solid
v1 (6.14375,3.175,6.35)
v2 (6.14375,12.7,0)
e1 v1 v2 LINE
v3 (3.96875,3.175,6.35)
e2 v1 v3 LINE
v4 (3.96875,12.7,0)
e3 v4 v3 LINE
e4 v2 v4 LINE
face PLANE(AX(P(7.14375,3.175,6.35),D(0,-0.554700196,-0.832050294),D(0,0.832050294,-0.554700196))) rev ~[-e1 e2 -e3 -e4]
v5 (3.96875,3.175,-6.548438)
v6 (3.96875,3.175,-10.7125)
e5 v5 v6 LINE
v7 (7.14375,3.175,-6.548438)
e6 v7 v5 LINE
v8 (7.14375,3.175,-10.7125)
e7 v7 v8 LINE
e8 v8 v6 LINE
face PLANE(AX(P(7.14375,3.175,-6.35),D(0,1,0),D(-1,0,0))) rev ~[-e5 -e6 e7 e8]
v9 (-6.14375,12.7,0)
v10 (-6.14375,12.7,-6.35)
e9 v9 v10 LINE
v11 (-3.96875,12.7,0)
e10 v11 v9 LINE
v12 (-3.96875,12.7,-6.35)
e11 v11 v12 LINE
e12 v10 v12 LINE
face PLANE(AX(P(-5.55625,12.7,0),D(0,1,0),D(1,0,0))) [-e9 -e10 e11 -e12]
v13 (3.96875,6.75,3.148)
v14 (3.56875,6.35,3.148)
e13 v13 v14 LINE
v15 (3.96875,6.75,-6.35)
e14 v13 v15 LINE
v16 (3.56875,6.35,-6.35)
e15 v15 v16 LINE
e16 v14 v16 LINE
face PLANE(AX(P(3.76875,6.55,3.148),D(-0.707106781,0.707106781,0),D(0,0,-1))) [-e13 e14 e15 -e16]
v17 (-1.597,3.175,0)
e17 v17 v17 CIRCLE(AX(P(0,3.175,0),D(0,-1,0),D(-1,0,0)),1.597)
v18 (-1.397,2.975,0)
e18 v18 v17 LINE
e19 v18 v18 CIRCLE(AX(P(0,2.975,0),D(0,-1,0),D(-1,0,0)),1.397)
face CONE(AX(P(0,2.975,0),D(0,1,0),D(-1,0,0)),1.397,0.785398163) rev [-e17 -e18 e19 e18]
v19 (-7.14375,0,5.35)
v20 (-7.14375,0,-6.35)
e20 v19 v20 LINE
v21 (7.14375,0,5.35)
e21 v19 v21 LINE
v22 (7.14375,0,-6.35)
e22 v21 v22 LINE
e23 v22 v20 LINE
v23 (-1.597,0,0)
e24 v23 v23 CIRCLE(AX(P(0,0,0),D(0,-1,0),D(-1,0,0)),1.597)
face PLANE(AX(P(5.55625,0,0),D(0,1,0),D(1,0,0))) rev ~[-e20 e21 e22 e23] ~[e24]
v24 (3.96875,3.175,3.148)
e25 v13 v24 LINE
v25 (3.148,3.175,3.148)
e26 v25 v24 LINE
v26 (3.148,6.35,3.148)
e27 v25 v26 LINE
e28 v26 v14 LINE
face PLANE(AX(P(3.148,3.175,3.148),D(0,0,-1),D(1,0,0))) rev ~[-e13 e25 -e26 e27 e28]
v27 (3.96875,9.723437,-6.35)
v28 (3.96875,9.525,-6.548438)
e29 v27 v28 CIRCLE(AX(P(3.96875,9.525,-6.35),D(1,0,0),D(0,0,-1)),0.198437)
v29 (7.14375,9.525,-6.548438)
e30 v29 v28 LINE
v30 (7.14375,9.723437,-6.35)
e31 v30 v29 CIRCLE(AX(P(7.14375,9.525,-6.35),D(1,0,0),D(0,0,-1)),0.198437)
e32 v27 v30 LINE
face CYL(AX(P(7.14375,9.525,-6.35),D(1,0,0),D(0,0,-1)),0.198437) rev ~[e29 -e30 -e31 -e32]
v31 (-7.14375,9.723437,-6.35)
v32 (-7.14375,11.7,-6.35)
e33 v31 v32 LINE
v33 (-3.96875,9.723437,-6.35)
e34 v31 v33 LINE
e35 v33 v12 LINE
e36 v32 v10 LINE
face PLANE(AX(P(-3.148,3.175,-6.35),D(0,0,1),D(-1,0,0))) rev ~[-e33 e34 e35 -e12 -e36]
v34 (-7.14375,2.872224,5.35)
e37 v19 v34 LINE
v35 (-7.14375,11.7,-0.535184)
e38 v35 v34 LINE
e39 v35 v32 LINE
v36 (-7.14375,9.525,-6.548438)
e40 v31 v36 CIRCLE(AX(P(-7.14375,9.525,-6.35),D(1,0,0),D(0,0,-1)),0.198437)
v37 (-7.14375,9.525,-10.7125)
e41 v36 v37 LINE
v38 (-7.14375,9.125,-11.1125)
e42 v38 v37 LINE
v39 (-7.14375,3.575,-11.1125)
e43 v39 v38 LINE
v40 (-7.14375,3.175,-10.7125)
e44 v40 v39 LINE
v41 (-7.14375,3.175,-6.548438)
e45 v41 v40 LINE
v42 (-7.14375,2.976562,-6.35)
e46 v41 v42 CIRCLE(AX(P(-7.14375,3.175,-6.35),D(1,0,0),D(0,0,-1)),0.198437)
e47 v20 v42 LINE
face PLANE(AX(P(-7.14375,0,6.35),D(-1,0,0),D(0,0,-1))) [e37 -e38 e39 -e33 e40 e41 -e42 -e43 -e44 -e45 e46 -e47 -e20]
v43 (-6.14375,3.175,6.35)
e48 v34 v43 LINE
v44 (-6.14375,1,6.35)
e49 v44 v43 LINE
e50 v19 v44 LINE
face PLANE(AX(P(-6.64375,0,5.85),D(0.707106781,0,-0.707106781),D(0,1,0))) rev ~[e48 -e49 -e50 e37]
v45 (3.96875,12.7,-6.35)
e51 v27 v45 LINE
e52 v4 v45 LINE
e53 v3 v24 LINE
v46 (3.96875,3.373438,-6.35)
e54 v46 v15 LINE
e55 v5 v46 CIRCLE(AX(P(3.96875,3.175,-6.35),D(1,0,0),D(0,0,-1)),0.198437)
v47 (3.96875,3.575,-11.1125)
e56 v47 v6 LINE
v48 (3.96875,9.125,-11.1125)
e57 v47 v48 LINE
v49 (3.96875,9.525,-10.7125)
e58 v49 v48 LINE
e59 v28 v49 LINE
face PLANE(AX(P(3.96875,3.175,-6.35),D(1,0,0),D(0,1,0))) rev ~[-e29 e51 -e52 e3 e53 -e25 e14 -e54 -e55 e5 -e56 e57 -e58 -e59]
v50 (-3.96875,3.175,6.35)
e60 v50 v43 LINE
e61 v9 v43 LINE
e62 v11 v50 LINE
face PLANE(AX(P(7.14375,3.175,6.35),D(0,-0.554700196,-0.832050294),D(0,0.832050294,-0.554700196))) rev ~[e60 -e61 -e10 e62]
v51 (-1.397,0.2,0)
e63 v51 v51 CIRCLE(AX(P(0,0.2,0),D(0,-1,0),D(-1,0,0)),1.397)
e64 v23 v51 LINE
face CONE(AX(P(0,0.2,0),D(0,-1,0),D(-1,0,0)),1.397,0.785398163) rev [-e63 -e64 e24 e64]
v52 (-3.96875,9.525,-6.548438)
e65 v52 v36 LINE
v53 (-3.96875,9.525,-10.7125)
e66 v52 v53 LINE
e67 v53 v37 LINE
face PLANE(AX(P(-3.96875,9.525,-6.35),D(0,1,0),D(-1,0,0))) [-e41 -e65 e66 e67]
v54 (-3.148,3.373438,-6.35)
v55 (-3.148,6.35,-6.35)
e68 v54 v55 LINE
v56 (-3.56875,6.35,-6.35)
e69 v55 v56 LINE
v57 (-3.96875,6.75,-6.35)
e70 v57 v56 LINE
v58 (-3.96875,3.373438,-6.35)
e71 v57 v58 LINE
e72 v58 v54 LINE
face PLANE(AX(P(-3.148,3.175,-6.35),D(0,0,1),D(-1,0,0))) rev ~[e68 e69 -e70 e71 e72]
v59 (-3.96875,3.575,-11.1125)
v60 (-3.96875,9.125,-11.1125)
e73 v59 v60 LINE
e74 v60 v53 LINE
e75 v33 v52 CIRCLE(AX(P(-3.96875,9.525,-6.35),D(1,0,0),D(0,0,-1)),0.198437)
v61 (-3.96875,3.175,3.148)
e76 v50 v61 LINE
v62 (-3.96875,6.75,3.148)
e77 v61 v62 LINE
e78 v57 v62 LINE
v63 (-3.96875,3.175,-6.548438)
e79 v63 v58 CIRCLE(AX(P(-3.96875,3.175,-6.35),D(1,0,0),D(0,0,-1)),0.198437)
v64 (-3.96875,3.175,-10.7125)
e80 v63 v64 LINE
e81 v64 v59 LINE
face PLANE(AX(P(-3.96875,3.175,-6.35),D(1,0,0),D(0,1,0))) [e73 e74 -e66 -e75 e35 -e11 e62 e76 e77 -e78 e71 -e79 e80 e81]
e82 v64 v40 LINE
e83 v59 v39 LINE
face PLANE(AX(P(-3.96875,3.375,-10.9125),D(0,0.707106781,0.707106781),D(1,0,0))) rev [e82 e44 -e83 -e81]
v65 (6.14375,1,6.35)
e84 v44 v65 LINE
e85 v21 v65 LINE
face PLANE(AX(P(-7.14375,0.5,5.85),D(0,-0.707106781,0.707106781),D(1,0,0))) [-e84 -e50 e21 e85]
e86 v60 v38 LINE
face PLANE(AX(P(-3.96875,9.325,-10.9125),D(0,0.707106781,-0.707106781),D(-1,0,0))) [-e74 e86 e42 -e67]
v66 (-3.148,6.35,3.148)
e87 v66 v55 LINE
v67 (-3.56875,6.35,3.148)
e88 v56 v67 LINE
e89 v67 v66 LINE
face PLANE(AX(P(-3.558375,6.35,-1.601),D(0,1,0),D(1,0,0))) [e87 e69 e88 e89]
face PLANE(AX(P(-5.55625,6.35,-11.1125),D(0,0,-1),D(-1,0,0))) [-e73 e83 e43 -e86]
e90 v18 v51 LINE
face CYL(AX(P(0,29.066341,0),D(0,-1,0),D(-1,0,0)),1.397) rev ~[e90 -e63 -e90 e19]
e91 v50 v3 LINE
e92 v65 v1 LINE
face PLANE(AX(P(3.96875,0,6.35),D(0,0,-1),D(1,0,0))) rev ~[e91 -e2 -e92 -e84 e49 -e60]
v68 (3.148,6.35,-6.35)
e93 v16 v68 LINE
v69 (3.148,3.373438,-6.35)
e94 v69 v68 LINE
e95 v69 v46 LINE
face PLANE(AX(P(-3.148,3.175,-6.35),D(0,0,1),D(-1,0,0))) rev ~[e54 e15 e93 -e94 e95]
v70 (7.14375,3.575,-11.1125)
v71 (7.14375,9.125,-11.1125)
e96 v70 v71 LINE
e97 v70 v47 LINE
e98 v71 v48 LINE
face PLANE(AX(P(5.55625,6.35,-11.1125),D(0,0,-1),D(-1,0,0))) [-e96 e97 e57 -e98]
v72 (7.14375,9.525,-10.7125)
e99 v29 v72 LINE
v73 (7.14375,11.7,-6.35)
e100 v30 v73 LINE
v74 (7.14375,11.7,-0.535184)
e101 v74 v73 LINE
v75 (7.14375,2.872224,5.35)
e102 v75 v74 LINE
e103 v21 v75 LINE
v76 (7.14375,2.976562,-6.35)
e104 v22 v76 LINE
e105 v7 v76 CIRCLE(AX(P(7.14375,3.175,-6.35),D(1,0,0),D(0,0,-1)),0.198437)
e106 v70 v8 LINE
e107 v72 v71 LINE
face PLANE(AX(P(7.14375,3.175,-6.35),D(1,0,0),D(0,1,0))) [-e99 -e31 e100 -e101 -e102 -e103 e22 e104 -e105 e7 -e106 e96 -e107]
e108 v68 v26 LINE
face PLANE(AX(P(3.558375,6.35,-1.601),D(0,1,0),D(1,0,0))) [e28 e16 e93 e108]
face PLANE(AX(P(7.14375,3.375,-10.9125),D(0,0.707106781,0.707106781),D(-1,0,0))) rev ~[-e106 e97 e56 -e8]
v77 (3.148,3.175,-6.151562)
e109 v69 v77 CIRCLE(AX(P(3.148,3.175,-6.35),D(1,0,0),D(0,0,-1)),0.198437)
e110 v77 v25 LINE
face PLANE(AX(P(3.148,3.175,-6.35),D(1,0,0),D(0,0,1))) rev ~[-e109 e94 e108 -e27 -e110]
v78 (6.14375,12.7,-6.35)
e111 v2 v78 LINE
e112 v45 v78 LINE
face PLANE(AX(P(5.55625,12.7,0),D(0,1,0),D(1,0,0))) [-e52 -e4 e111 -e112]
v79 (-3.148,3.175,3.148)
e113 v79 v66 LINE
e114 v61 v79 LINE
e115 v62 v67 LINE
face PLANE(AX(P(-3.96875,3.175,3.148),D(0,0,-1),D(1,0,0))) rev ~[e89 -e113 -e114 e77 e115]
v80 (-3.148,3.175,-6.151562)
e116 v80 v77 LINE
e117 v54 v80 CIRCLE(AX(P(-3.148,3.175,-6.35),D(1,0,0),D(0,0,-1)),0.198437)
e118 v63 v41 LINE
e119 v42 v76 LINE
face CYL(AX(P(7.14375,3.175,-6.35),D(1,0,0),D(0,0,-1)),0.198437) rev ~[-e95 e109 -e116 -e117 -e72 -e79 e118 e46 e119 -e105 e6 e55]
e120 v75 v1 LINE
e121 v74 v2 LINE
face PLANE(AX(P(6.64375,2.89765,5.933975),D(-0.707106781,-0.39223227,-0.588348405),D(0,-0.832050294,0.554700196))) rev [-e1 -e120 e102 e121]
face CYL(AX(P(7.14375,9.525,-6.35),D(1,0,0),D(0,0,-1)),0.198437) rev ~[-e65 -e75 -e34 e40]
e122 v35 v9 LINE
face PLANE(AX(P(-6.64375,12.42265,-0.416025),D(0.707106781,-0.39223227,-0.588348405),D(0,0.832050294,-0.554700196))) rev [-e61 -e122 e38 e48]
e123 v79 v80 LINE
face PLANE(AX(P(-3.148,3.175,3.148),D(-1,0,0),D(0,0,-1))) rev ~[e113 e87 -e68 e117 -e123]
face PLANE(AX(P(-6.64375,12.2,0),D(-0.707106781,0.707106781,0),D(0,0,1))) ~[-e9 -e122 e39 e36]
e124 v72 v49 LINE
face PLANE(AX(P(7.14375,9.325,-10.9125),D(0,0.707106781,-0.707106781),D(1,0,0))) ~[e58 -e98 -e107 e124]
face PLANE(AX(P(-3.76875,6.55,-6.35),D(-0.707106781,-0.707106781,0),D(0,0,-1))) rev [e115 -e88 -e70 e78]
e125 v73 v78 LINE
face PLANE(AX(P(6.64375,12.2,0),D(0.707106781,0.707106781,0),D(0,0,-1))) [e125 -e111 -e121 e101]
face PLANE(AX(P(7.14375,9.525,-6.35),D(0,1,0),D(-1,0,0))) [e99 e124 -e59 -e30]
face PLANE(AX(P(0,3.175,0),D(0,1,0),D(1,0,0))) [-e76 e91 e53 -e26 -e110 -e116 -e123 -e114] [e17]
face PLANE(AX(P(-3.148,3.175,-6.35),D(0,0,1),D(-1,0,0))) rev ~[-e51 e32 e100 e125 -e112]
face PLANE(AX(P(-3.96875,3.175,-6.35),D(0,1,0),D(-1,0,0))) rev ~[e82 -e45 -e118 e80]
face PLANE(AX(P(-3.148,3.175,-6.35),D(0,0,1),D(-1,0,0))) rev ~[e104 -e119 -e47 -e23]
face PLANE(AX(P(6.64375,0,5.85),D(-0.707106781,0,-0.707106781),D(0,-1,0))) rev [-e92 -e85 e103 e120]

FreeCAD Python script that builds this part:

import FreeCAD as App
import Part
import Sketcher
Q = App.Units.Quantity


def edges_at(feature, points):
    """Names of the edges that pass closest to the given points."""
    edges = feature.Shape.Edges
    near = lambda p: min(range(len(edges)), key=lambda i: edges[i].distToShape(Part.Vertex(*p))[0])
    return sorted({f"Edge{near(p) + 1}" for p in points})

doc = App.newDocument("Part")
body = doc.addObject("PartDesign::Body", "Body")

# Sketch on XZ plane
sketch1 = body.newObject("Sketcher::SketchObject", "Sketch")
sketch1.AttachmentSupport = (doc.getObject("XZ_Plane"), [""])
sketch1.MapMode = "FlatFace"
sketch1.addGeometry(Part.LineSegment(App.Vector(-4, -6, 0), App.Vector(-4, 6, 0)), False)
sketch1.addGeometry(Part.LineSegment(App.Vector(-4, 6, 0), App.Vector(4, 6, 0)), False)
sketch1.addGeometry(Part.LineSegment(App.Vector(4, 6, 0), App.Vector(4, -6, 0)), False)
sketch1.addGeometry(Part.LineSegment(App.Vector(4, -6, 0), App.Vector(-4, -6, 0)), False)
sketch1.addConstraint(Sketcher.Constraint("Coincident", 0, 2, 1, 1))
sketch1.addConstraint(Sketcher.Constraint("Coincident", 1, 2, 2, 1))
sketch1.addConstraint(Sketcher.Constraint("Coincident", 2, 2, 3, 1))
sketch1.addConstraint(Sketcher.Constraint("Coincident", 3, 2, 0, 1))
sketch1.addConstraint(Sketcher.Constraint("Vertical", 0))
sketch1.addConstraint(Sketcher.Constraint("Horizontal", 1))
sketch1.addConstraint(Sketcher.Constraint("Vertical", 2))
sketch1.addConstraint(Sketcher.Constraint("Horizontal", 3))
sketch1.addConstraint(Sketcher.Constraint("Symmetric", 0, 2, 2, 2, -1, 1))
sketch1.addConstraint(Sketcher.Constraint("DistanceY", 0, 1, 0, 2, Q("0.5 in")))
sketch1.addConstraint(Sketcher.Constraint("DistanceX", 1, 1, 1, 2, Q("0.3125 in")))
pad1 = body.newObject("PartDesign::Pad", "Pad")
pad1.Profile = sketch1
pad1.Length = Q("0.125 in")
pad1.Reversed = True

# Sketch on XZ plane
sketch2 = body.newObject("Sketcher::SketchObject", "Sketch001")
sketch2.AttachmentSupport = (doc.getObject("XZ_Plane"), [""])
sketch2.MapMode = "FlatFace"
sketch2.addGeometry(Part.LineSegment(App.Vector(4, -6.3, 0), App.Vector(4, 6.3, 0)), False)
sketch2.addGeometry(Part.LineSegment(App.Vector(4, 6.3, 0), App.Vector(7.1, 6.3, 0)), False)
sketch2.addGeometry(Part.LineSegment(App.Vector(7.1, 6.3, 0), App.Vector(7.1, -6.3, 0)), False)
sketch2.addGeometry(Part.LineSegment(App.Vector(7.1, -6.3, 0), App.Vector(4, -6.3, 0)), False)
sketch2.addGeometry(Part.LineSegment(App.Vector(-7.1, -6.3, 0), App.Vector(-7.1, 6.3, 0)), False)
sketch2.addGeometry(Part.LineSegment(App.Vector(-7.1, 6.3, 0), App.Vector(-4, 6.3, 0)), False)
sketch2.addGeometry(Part.LineSegment(App.Vector(-4, 6.3, 0), App.Vector(-4, -6.3, 0)), False)
sketch2.addGeometry(Part.LineSegment(App.Vector(-4, -6.3, 0), App.Vector(-7.1, -6.3, 0)), False)
sketch2.addConstraint(Sketcher.Constraint("Coincident", 0, 2, 1, 1))
sketch2.addConstraint(Sketcher.Constraint("Coincident", 1, 2, 2, 1))
sketch2.addConstraint(Sketcher.Constraint("Coincident", 2, 2, 3, 1))
sketch2.addConstraint(Sketcher.Constraint("Coincident", 3, 2, 0, 1))
sketch2.addConstraint(Sketcher.Constraint("Coincident", 4, 2, 5, 1))
sketch2.addConstraint(Sketcher.Constraint("Coincident", 5, 2, 6, 1))
sketch2.addConstraint(Sketcher.Constraint("Coincident", 6, 2, 7, 1))
sketch2.addConstraint(Sketcher.Constraint("Coincident", 7, 2, 4, 1))
sketch2.addConstraint(Sketcher.Constraint("Vertical", 0))
sketch2.addConstraint(Sketcher.Constraint("Horizontal", 1))
sketch2.addConstraint(Sketcher.Constraint("Vertical", 2))
sketch2.addConstraint(Sketcher.Constraint("Horizontal", 3))
sketch2.addConstraint(Sketcher.Constraint("Vertical", 4))
sketch2.addConstraint(Sketcher.Constraint("Horizontal", 5))
sketch2.addConstraint(Sketcher.Constraint("Vertical", 6))
sketch2.addConstraint(Sketcher.Constraint("Horizontal", 7))
sketch2.addConstraint(Sketcher.Constraint("Symmetric", 2, 2, 4, 2, -1, 1))
sketch2.addConstraint(Sketcher.Constraint("Symmetric", 0, 2, 6, 2, -1, 1))
sketch2.addConstraint(Sketcher.Constraint("Horizontal", 1, 2, 4, 2))
sketch2.addConstraint(Sketcher.Constraint("DistanceY", 0, 1, 0, 2, Q("0.5 in")))
sketch2.addConstraint(Sketcher.Constraint("DistanceX", 1, 1, 1, 2, Q("0.125 in")))
sketch2.addConstraint(Sketcher.Constraint("DistanceX", -1, 1, 0, 2, Q("0.15625 in")))
pad2 = body.newObject("PartDesign::Pad", "Pad001")
pad2.Profile = sketch2
pad2.Length = Q("0.5 in")
pad2.Reversed = True

# Sketch on YZ plane
sketch3 = body.newObject("Sketcher::SketchObject", "Sketch002")
sketch3.AttachmentSupport = (doc.getObject("YZ_Plane"), [""])
sketch3.MapMode = "FlatFace"
sketch3.AttachmentOffset = App.Placement(App.Vector(0, 0, 0.28125 * 25.4), App.Rotation())
sketch3.addGeometry(Part.LineSegment(App.Vector(3, 6, 0), App.Vector(13, 0, 0)), False)
sketch3.addGeometry(Part.LineSegment(App.Vector(13, 0, 0), App.Vector(13, 6, 0)), False)
sketch3.addGeometry(Part.LineSegment(App.Vector(13, 6, 0), App.Vector(3, 6, 0)), False)
sketch3.addConstraint(Sketcher.Constraint("Coincident", 0, 2, 1, 1))
sketch3.addConstraint(Sketcher.Constraint("Coincident", 1, 2, 2, 1))
sketch3.addConstraint(Sketcher.Constraint("Coincident", 2, 2, 0, 1))
sketch3.addConstraint(Sketcher.Constraint("Vertical", 1))
sketch3.addConstraint(Sketcher.Constraint("Horizontal", 2))
sketch3.addConstraint(Sketcher.Constraint("PointOnObject", 0, 2, -1))
sketch3.addConstraint(Sketcher.Constraint("DistanceY", 1, 1, 1, 2, Q("0.25 in")))
sketch3.addConstraint(Sketcher.Constraint("DistanceX", -1, 1, 0, 2, Q("0.5 in")))
sketch3.addConstraint(Sketcher.Constraint("DistanceX", 2, 2, 2, 1, Q("0.375 in")))
pocket1 = body.newObject("PartDesign::Pocket", "Pocket")
pocket1.Profile = sketch3
pocket1.Type = "ThroughAll"

# Sketch on XZ plane
sketch4 = body.newObject("Sketcher::SketchObject", "Sketch003")
sketch4.AttachmentSupport = (doc.getObject("XZ_Plane"), [""])
sketch4.MapMode = "FlatFace"
sketch4.AttachmentOffset = App.Placement(App.Vector(0, 0, -0.125 * 25.4), App.Rotation())
sketch4.addGeometry(Part.LineSegment(App.Vector(-3.1, -6.3, 0), App.Vector(-4, -6.3, 0)), False)
sketch4.addGeometry(Part.LineSegment(App.Vector(-4, -6.3, 0), App.Vector(-4, 3.1, 0)), False)
sketch4.addGeometry(Part.LineSegment(App.Vector(-4, 3.1, 0), App.Vector(-3.1, 3.1, 0)), False)
sketch4.addGeometry(Part.LineSegment(App.Vector(-3.1, 3.1, 0), App.Vector(-3.1, -6.3, 0)), False)
sketch4.addGeometry(Part.LineSegment(App.Vector(3.1, 3.1, 0), App.Vector(4, 3.1, 0)), False)
sketch4.addGeometry(Part.LineSegment(App.Vector(4, 3.1, 0), App.Vector(4, -6.3, 0)), False)
sketch4.addGeometry(Part.LineSegment(App.Vector(4, -6.3, 0), App.Vector(3.1, -6.3, 0)), False)
sketch4.addGeometry(Part.LineSegment(App.Vector(3.1, -6.3, 0), App.Vector(3.1, 3.1, 0)), False)
sketch4.addConstraint(Sketcher.Constraint("Coincident", 0, 2, 1, 1))
sketch4.addConstraint(Sketcher.Constraint("Coincident", 1, 2, 2, 1))
sketch4.addConstraint(Sketcher.Constraint("Coincident", 2, 2, 3, 1))
sketch4.addConstraint(Sketcher.Constraint("Coincident", 3, 2, 0, 1))
sketch4.addConstraint(Sketcher.Constraint("Coincident", 4, 2, 5, 1))
sketch4.addConstraint(Sketcher.Constraint("Coincident", 5, 2, 6, 1))
sketch4.addConstraint(Sketcher.Constraint("Coincident", 6, 2, 7, 1))
sketch4.addConstraint(Sketcher.Constraint("Coincident", 7, 2, 4, 1))
sketch4.addConstraint(Sketcher.Constraint("Horizontal", 0))
sketch4.addConstraint(Sketcher.Constraint("Vertical", 1))
sketch4.addConstraint(Sketcher.Constraint("Horizontal", 2))
sketch4.addConstraint(Sketcher.Constraint("Vertical", 3))
sketch4.addConstraint(Sketcher.Constraint("Horizontal", 4))
sketch4.addConstraint(Sketcher.Constraint("Vertical", 5))
sketch4.addConstraint(Sketcher.Constraint("Horizontal", 6))
sketch4.addConstraint(Sketcher.Constraint("Vertical", 7))
sketch4.addConstraint(Sketcher.Constraint("Symmetric", 1, 2, 4, 2, -2))
sketch4.addConstraint(Sketcher.Constraint("Symmetric", 3, 2, 6, 2, -2))
sketch4.addConstraint(Sketcher.Constraint("DistanceY", 0, 2, -1, 1, Q("0.25 in")))
sketch4.addConstraint(Sketcher.Constraint("DistanceX", 0, 2, -1, 1, Q("0.15625 in")))
sketch4.addConstraint(Sketcher.Constraint("DistanceY", 1, 1, 1, 2, 9.498))
sketch4.addConstraint(Sketcher.Constraint("DistanceX", 0, 2, 0, 1, 0.82075))
pad3 = body.newObject("PartDesign::Pad", "Pad002")
pad3.Profile = sketch4
pad3.Length = Q("0.125 in")
pad3.Reversed = True

# Sketch on XY plane
sketch5 = body.newObject("Sketcher::SketchObject", "Sketch004")
sketch5.AttachmentSupport = (doc.getObject("XY_Plane"), [""])
sketch5.MapMode = "FlatFace"
sketch5.AttachmentOffset = App.Placement(App.Vector(0, 0, -0.25 * 25.4), App.Rotation())
sketch5.addGeometry(Part.LineSegment(App.Vector(7.1, 9.5, 0), App.Vector(7.1, 3.2, 0)), False)
sketch5.addGeometry(Part.LineSegment(App.Vector(7.1, 3.2, 0), App.Vector(4, 3.2, 0)), False)
sketch5.addGeometry(Part.LineSegment(App.Vector(4, 3.2, 0), App.Vector(4, 9.5, 0)), False)
sketch5.addGeometry(Part.LineSegment(App.Vector(4, 9.5, 0), App.Vector(7.1, 9.5, 0)), False)
sketch5.addGeometry(Part.LineSegment(App.Vector(-4, 9.5, 0), App.Vector(-4, 3.2, 0)), False)
sketch5.addGeometry(Part.LineSegment(App.Vector(-4, 3.2, 0), App.Vector(-7.1, 3.2, 0)), False)
sketch5.addGeometry(Part.LineSegment(App.Vector(-7.1, 3.2, 0), App.Vector(-7.1, 9.5, 0)), False)
sketch5.addGeometry(Part.LineSegment(App.Vector(-7.1, 9.5, 0), App.Vector(-4, 9.5, 0)), False)
sketch5.addConstraint(Sketcher.Constraint("Coincident", 0, 2, 1, 1))
sketch5.addConstraint(Sketcher.Constraint("Coincident", 1, 2, 2, 1))
sketch5.addConstraint(Sketcher.Constraint("Coincident", 2, 2, 3, 1))
sketch5.addConstraint(Sketcher.Constraint("Coincident", 3, 2, 0, 1))
sketch5.addConstraint(Sketcher.Constraint("Coincident", 4, 2, 5, 1))
sketch5.addConstraint(Sketcher.Constraint("Coincident", 5, 2, 6, 1))
sketch5.addConstraint(Sketcher.Constraint("Coincident", 6, 2, 7, 1))
sketch5.addConstraint(Sketcher.Constraint("Coincident", 7, 2, 4, 1))
sketch5.addConstraint(Sketcher.Constraint("Vertical", 0))
sketch5.addConstraint(Sketcher.Constraint("Horizontal", 1))
sketch5.addConstraint(Sketcher.Constraint("Vertical", 2))
sketch5.addConstraint(Sketcher.Constraint("Horizontal", 3))
sketch5.addConstraint(Sketcher.Constraint("Vertical", 4))
sketch5.addConstraint(Sketcher.Constraint("Horizontal", 5))
sketch5.addConstraint(Sketcher.Constraint("Vertical", 6))
sketch5.addConstraint(Sketcher.Constraint("Horizontal", 7))
sketch5.addConstraint(Sketcher.Constraint("Symmetric", 1, 2, 4, 2, -2))
sketch5.addConstraint(Sketcher.Constraint("Symmetric", 3, 2, 6, 2, -2))
sketch5.addConstraint(Sketcher.Constraint("DistanceY", 0, 2, 0, 1, Q("0.25 in")))
sketch5.addConstraint(Sketcher.Constraint("DistanceX", 1, 2, 1, 1, Q("0.125 in")))
sketch5.addConstraint(Sketcher.Constraint("DistanceX", -1, 1, 0, 2, Q("0.28125 in")))
sketch5.addConstraint(Sketcher.Constraint("DistanceY", -1, 1, 0, 2, Q("0.125 in")))
pad4 = body.newObject("PartDesign::Pad", "Pad003")
pad4.Profile = sketch5
pad4.Length = Q("0.1875 in")
pad4.Reversed = True

# Sketch on YZ plane
sketch6 = body.newObject("Sketcher::SketchObject", "Sketch005")
sketch6.AttachmentSupport = (doc.getObject("YZ_Plane"), [""])
sketch6.MapMode = "FlatFace"
sketch6.AttachmentOffset = App.Placement(App.Vector(0, 0, 0.28125 * 25.4), App.Rotation())
sketch6.addGeometry(Part.Circle(App.Vector(9.53, -6.35, 0), App.Vector(0, 0, 1), 0.2), False)
sketch6.addGeometry(Part.Circle(App.Vector(3.17, -6.35, 0), App.Vector(0, 0, 1), 0.2), False)
sketch6.addConstraint(Sketcher.Constraint("Equal", 0, 1))
sketch6.addConstraint(Sketcher.Constraint("Horizontal", 0, 3, 1, 3))
sketch6.addConstraint(Sketcher.Constraint("Diameter", 0, Q("0.015625 in")))
sketch6.addConstraint(Sketcher.Constraint("DistanceY", 0, 3, -1, 1, Q("0.25 in")))
sketch6.addConstraint(Sketcher.Constraint("DistanceX", 1, 3, 0, 3, Q("0.25 in")))
sketch6.addConstraint(Sketcher.Constraint("DistanceX", -1, 1, 0, 3, Q("0.375 in")))
pocket2 = body.newObject("PartDesign::Pocket", "Pocket001")
pocket2.Profile = sketch6
pocket2.Type = "ThroughAll"
doc.recompute()

chamfer = body.newObject("PartDesign::Chamfer", "Chamfer")
chamfer.Base = (pocket2, edges_at(pocket2, [
    (-5.556, 9.525, -11.113),
    (-5.556, 3.175, -11.113),
    (5.556, 3.175, -11.113),
    (5.556, 9.525, -11.113),
    (3.969, 6.35, -1.601),
    (-3.969, 6.35, -1.601),
]))
chamfer.Size = 0.4
doc.recompute()

chamfer2 = body.newObject("PartDesign::Chamfer", "Chamfer001")
chamfer2.Base = (chamfer, edges_at(chamfer, [
    (-7.144, 12.7, -3.175),
    (7.144, 12.7, -3.175),
    (7.144, 7.938, 3.175),
    (-7.144, 7.938, 3.175),
    (-7.144, 1.587, 6.35),
    (7.144, 1.587, 6.35),
    (0, 0, 6.35),
]))
chamfer2.Size = 1

# Sketch on XZ plane
sketch7 = body.newObject("Sketcher::SketchObject", "Sketch006")
sketch7.AttachmentSupport = (doc.getObject("XZ_Plane"), [""])
sketch7.MapMode = "FlatFace"
sketch7.AttachmentOffset = App.Placement(App.Vector(0, 0, -0.125 * 25.4), App.Rotation())
sketch7.addGeometry(Part.Circle(App.Vector(0, 0, 0), App.Vector(0, 0, 1), 1.4), False)
sketch7.addConstraint(Sketcher.Constraint("Coincident", 0, 3, -1, 1))
sketch7.addConstraint(Sketcher.Constraint("Diameter", 0, Q("0.11 in")))
doc.recompute()
hole = body.newObject("PartDesign::Hole", "Hole")
hole.Profile = sketch7
hole.ThreadType = "None"
hole.Diameter = Q("0.11 in")
hole.DepthType = "ThroughAll"
hole.Reversed = True
doc.recompute()

chamfer3 = body.newObject("PartDesign::Chamfer", "Chamfer002")
chamfer3.Base = (hole, edges_at(hole, [(1.397, 3.175, 0), (1.397, 0, 0)]))
chamfer3.Size = 0.2

doc.recompute()
